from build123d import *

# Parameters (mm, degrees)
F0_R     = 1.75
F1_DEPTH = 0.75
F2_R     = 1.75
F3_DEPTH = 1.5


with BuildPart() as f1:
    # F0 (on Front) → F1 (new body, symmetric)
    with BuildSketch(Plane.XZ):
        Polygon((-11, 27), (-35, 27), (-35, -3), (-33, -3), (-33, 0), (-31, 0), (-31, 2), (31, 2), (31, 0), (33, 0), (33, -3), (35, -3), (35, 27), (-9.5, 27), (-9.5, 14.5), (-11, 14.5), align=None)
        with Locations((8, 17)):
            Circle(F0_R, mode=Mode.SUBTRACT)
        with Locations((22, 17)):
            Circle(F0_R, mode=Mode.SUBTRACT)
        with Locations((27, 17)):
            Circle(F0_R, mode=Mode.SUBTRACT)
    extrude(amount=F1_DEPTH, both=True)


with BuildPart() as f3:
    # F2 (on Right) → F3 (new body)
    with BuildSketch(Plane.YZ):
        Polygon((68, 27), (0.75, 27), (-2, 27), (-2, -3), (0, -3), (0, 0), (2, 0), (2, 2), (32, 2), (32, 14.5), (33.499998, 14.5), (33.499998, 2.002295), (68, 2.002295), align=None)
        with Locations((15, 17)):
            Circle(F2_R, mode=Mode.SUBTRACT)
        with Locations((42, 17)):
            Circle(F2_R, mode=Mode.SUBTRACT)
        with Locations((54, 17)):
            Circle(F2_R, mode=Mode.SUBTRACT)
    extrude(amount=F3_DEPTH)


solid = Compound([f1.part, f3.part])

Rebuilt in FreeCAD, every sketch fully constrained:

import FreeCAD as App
import Part
import Sketcher

V = App.Vector


def add_polygon(sketch, points):
    """Adds a closed chain of lines whose ends are joined by coincident constraints."""
    first, n = sketch.GeometryCount, len(points)
    for a, b in zip(points, points[1:] + points[:1]):
        sketch.addGeometry(Part.LineSegment(App.Vector(*a, 0), App.Vector(*b, 0)), False)
    for i in range(n):
        sketch.addConstraint(Sketcher.Constraint("Coincident", first + i, 2, first + (i + 1) % n, 1))

doc = App.newDocument("Part")
body = doc.addObject("PartDesign::Body", "Body")

sketch1 = body.newObject("Sketcher::SketchObject", "Sketch")
sketch1.AttachmentSupport = (doc.getObject("XZ_Plane"), [""])
sketch1.MapMode = "FlatFace"
add_polygon(sketch1, [(-11, 27), (-35, 27), (-35, -3), (-33, -3), (-33, 0), (-31, 0), (-31, 2), (31, 2), (31, 0), (33, 0), (33, -3), (35, -3), (35, 27), (-9.5, 27), (-9.5, 14.5), (-11, 14.5)])
sketch1.addGeometry(Part.Circle(V(8, 17, 0), V(0, 0, 1), 1.8), False)
sketch1.addGeometry(Part.Circle(V(22, 17, 0), V(0, 0, 1), 1.8), False)
sketch1.addGeometry(Part.Circle(V(27, 17, 0), V(0, 0, 1), 1.8), False)
sketch1.addConstraint([
    Sketcher.Constraint("Horizontal", 0),
    Sketcher.Constraint("Vertical", 1),
    Sketcher.Constraint("Horizontal", 2),
    Sketcher.Constraint("Vertical", 3),
    Sketcher.Constraint("Horizontal", 4),
    Sketcher.Constraint("Vertical", 5),
    Sketcher.Constraint("Horizontal", 6),
    Sketcher.Constraint("Vertical", 7),
    Sketcher.Constraint("Horizontal", 8),
    Sketcher.Constraint("Vertical", 9),
    Sketcher.Constraint("Horizontal", 10),
    Sketcher.Constraint("Vertical", 11),
    Sketcher.Constraint("Horizontal", 12),
    Sketcher.Constraint("Vertical", 13),
    Sketcher.Constraint("Horizontal", 14),
    Sketcher.Constraint("Vertical", 15),
    Sketcher.Constraint("Equal", 16, 17),
    Sketcher.Constraint("Equal", 17, 18),
    Sketcher.Constraint("Symmetric", 4, 2, 7, 2, -1, 1),
    Sketcher.Constraint("Symmetric", 3, 2, 8, 2, -2),
    Sketcher.Constraint("Symmetric", 1, 2, 10, 2, -2),
    Sketcher.Constraint("Horizontal", 16, 3, 17, 3),
    Sketcher.Constraint("Horizontal", 17, 3, 18, 3),
    Sketcher.Constraint("Horizontal", 0, 2, 11, 2),
    Sketcher.Constraint("Equal", 2, 4),
    Sketcher.Constraint("Equal", 10, 5),
    Sketcher.Constraint("Diameter", 16, 3.5),
    Sketcher.Constraint("DistanceX", 0, 2, 0, 1, 24.0),
    Sketcher.Constraint("DistanceX", 2, 1, 2, 2, 2.0),
    Sketcher.Constraint("DistanceX", 6, 1, 6, 2, 62.0),
    Sketcher.Constraint("DistanceY", 1, 2, 1, 1, 30.0),
    Sketcher.Constraint("DistanceY", 3, 1, 3, 2, 3.0),
    Sketcher.Constraint("DistanceX", 12, 2, 12, 1, 44.5),
    Sketcher.Constraint("DistanceY", 13, 2, 13, 1, 12.5),
    Sketcher.Constraint("DistanceX", -1, 1, 16, 3, 8.0),
    Sketcher.Constraint("DistanceY", -1, 1, 16, 3, 17.0),
    Sketcher.Constraint("DistanceX", -1, 1, 17, 3, 22.0),
    Sketcher.Constraint("DistanceX", -1, 1, 18, 3, 27.0),
])
pad1 = body.newObject("PartDesign::Pad", "Pad")
pad1.Profile = sketch1
pad1.Length = 1.5
pad1.Midplane = True
body2 = doc.addObject("PartDesign::Body", "Body001")

sketch2 = body2.newObject("Sketcher::SketchObject", "Sketch001")
sketch2.AttachmentSupport = (doc.getObject("YZ_Plane001"), [""])
sketch2.MapMode = "FlatFace"
add_polygon(sketch2, [(68, 27), (-2, 27), (-2, -3), (0, -3), (0, 0), (2, 0), (2, 2), (32, 2), (32, 14.5), (33.5, 14.5), (33.5, 2), (68, 2)])
sketch2.addGeometry(Part.Circle(V(15, 17, 0), V(0, 0, 1), 1.8), False)
sketch2.addGeometry(Part.Circle(V(42, 17, 0), V(0, 0, 1), 1.8), False)
sketch2.addGeometry(Part.Circle(V(54, 17, 0), V(0, 0, 1), 1.8), False)
sketch2.addConstraint([
    Sketcher.Constraint("Horizontal", 0),
    Sketcher.Constraint("Vertical", 1),
    Sketcher.Constraint("Horizontal", 2),
    Sketcher.Constraint("Vertical", 3),
    Sketcher.Constraint("Horizontal", 4),
    Sketcher.Constraint("Vertical", 5),
    Sketcher.Constraint("Horizontal", 6),
    Sketcher.Constraint("Vertical", 7),
    Sketcher.Constraint("Horizontal", 8),
    Sketcher.Constraint("Vertical", 9),
    Sketcher.Constraint("Horizontal", 10),
    Sketcher.Constraint("Vertical", 11),
    Sketcher.Constraint("Coincident", 3, 2, -1, 1),
    Sketcher.Constraint("Equal", 12, 13),
    Sketcher.Constraint("Equal", 13, 14),
    Sketcher.Constraint("Horizontal", 12, 3, 13, 3),
    Sketcher.Constraint("Horizontal", 13, 3, 14, 3),
    Sketcher.Constraint("Equal", 2, 4),
    Sketcher.Constraint("Equal", 6, 1),
    Sketcher.Constraint("Equal", 4, 5),
    Sketcher.Constraint("Diameter", 12, 3.5),
    Sketcher.Constraint("DistanceX", 0, 2, 0, 1, 70.0),
    Sketcher.Constraint("DistanceX", 2, 1, 2, 2, 2.0),
    Sketcher.Constraint("DistanceX", 6, 1, 6, 2, 30.0),
    Sketcher.Constraint("DistanceY", 3, 1, 3, 2, 3.0),
    Sketcher.Constraint("DistanceY", 7, 1, 7, 2, 12.5),
    Sketcher.Constraint("DistanceX", -1, 1, 12, 3, 15.0),
    Sketcher.Constraint("DistanceY", -1, 1, 12, 3, 17.0),
    Sketcher.Constraint("DistanceX", -1, 1, 13, 3, 42.0),
    Sketcher.Constraint("DistanceX", -1, 1, 14, 3, 54.0),
    Sketcher.Constraint("DistanceX", 8, 1, 8, 2, 1.499998),
    Sketcher.Constraint("DistanceY", 9, 2, 9, 1, 12.497705),
])
pad2 = body2.newObject("PartDesign::Pad", "Pad001")
pad2.Profile = sketch2
pad2.Length = 1.5

doc.recompute()
